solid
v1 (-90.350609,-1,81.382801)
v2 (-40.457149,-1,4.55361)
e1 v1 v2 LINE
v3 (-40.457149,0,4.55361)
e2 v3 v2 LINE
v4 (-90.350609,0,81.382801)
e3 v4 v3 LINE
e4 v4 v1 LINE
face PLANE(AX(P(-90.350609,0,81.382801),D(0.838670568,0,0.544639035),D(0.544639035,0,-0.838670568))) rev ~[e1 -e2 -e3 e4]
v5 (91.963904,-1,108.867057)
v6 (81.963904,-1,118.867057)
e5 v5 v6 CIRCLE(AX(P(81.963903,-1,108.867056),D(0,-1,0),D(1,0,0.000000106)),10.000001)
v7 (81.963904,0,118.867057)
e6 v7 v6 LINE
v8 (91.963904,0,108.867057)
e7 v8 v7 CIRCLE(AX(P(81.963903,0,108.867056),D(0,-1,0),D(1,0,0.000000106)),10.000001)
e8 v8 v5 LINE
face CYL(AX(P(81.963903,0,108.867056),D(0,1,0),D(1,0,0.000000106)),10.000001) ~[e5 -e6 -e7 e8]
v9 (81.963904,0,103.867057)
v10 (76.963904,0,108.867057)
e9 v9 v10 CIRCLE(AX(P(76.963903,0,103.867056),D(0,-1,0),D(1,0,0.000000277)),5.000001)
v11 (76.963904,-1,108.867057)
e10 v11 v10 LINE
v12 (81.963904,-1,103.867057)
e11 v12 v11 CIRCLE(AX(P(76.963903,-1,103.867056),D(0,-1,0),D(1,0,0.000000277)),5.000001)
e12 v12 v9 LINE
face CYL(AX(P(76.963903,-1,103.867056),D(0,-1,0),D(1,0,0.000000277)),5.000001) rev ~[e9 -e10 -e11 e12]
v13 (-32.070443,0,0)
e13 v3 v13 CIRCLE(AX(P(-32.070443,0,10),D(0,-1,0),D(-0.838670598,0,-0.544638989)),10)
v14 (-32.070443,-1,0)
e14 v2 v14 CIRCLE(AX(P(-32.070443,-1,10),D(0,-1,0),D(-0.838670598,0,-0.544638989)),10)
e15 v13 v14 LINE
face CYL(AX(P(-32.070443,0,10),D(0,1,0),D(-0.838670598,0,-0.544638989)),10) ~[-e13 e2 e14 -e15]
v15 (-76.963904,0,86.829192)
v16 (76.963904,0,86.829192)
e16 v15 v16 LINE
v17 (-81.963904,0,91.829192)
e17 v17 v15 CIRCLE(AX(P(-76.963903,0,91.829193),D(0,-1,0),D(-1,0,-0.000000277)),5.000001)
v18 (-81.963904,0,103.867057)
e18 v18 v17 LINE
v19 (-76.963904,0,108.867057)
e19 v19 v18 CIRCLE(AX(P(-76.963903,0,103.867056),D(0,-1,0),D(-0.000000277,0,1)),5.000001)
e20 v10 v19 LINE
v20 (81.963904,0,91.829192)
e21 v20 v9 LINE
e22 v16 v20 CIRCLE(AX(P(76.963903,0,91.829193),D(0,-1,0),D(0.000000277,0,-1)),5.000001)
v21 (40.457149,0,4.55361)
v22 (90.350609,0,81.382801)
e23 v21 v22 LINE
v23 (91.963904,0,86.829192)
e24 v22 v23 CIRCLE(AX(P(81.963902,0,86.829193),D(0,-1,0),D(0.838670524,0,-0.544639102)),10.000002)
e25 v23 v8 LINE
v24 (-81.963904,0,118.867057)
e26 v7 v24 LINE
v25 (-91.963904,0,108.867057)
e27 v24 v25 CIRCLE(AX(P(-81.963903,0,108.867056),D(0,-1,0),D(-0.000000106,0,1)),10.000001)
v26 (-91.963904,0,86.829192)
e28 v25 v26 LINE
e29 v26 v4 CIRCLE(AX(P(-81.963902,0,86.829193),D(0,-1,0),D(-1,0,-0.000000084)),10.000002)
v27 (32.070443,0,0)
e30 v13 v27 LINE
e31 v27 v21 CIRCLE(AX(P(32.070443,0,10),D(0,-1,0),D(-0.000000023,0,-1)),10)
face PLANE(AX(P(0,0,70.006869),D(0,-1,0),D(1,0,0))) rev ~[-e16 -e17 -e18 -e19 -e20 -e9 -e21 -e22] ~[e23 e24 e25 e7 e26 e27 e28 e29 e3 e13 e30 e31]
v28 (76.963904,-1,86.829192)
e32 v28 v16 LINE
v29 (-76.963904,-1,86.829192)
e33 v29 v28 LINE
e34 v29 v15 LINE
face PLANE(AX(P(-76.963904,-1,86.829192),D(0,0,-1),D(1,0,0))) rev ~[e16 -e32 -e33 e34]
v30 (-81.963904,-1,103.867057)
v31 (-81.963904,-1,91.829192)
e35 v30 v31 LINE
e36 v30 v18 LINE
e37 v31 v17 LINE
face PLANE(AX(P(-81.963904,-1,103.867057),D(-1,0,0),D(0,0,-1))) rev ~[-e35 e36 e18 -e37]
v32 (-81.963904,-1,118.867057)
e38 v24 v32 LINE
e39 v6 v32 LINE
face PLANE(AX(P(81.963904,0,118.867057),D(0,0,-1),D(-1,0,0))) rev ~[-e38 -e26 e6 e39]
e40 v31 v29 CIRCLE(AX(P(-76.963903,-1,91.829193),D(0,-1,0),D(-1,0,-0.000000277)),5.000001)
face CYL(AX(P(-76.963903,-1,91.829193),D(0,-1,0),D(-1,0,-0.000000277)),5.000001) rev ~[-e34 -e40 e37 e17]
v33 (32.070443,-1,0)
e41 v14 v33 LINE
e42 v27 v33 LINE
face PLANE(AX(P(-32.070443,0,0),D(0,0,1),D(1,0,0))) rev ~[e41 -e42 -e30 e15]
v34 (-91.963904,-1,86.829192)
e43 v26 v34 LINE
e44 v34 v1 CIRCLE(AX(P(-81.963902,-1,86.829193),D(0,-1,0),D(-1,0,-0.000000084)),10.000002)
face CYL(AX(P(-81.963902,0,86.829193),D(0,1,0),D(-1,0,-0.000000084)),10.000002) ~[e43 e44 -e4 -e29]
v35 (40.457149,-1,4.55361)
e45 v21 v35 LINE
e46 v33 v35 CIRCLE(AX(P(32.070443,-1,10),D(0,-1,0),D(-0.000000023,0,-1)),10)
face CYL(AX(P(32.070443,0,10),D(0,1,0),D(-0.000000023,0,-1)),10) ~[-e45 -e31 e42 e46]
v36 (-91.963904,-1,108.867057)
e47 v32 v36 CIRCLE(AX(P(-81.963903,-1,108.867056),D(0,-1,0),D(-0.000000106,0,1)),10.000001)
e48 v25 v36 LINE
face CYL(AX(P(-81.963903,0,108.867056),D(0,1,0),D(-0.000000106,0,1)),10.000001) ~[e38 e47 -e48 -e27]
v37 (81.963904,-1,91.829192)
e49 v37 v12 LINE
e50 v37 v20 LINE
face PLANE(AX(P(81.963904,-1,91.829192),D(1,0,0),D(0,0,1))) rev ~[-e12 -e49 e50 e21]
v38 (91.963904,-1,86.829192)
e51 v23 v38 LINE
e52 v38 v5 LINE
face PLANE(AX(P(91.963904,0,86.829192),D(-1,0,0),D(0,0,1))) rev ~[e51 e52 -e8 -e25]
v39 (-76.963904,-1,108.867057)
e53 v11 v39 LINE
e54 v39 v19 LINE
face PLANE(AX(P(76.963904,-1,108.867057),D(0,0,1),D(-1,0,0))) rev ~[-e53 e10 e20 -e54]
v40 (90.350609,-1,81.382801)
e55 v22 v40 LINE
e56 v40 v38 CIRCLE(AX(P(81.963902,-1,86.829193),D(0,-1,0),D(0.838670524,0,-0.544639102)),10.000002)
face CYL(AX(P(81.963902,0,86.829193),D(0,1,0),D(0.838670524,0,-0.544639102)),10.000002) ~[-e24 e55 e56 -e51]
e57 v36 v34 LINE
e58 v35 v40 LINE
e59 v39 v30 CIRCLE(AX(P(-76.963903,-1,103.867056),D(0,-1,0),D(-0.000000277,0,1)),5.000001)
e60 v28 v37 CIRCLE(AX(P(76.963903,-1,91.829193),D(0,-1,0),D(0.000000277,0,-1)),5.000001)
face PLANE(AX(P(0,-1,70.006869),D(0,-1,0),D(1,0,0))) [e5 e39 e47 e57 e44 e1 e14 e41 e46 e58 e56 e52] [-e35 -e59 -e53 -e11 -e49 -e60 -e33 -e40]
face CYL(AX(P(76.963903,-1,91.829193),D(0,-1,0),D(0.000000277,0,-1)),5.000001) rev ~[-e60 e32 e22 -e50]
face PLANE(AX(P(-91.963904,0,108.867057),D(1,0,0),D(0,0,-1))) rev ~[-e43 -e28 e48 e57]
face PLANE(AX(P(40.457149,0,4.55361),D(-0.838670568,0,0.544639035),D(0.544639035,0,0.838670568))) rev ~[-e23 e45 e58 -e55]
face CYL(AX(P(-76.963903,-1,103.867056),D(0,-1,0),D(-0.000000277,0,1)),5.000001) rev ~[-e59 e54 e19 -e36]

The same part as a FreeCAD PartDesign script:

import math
import FreeCAD as App
import Part
import Sketcher
Q = App.Units.Quantity

doc = App.newDocument("Part")
body = doc.addObject("PartDesign::Body", "Body")

sketch1 = body.newObject("Sketcher::SketchObject", "Sketch")
sketch1.AttachmentSupport = (doc.getObject("XZ_Plane"), [""])
sketch1.MapMode = "FlatFace"
sketch1.addGeometry(Part.LineSegment(App.Vector(-32.070443, 0, 0), App.Vector(32.070443, 0, 0)), False)
sketch1.addGeometry(Part.ArcOfCircle(Part.Circle(App.Vector(32.070443, 10, 0), App.Vector(0, 0, 1), 10), math.radians(-90.000001), math.radians(-32.999997)), False)
sketch1.addGeometry(Part.LineSegment(App.Vector(40.457149, 4.55361, 0), App.Vector(90.350609, 81.382801, 0)), False)
sketch1.addGeometry(Part.ArcOfCircle(Part.Circle(App.Vector(81.963902, 86.829193, 0), App.Vector(0, 0, 1), 10.000002), math.radians(-33.000005), math.radians(-0.000005)), False)
sketch1.addGeometry(Part.LineSegment(App.Vector(91.963904, 86.829192, 0), App.Vector(91.963904, 108.867057, 0)), False)
sketch1.addGeometry(Part.ArcOfCircle(Part.Circle(App.Vector(81.963903, 108.867056, 0), App.Vector(0, 0, 1), 10.000001), math.radians(0.000006), math.radians(89.999994)), False)
sketch1.addGeometry(Part.LineSegment(App.Vector(81.963904, 118.867057, 0), App.Vector(-81.963904, 118.867057, 0)), False)
sketch1.addGeometry(Part.ArcOfCircle(Part.Circle(App.Vector(-81.963903, 108.867056, 0), App.Vector(0, 0, 1), 10.000001), math.radians(90.000006), math.radians(179.999994)), False)
sketch1.addGeometry(Part.LineSegment(App.Vector(-91.963904, 108.867057, 0), App.Vector(-91.963904, 86.829192, 0)), False)
sketch1.addGeometry(Part.ArcOfCircle(Part.Circle(App.Vector(-81.963902, 86.829193, 0), App.Vector(0, 0, 1), 10.000002), math.radians(-179.999995), math.radians(-146.999995)), False)
sketch1.addGeometry(Part.LineSegment(App.Vector(-90.350609, 81.382801, 0), App.Vector(-40.457149, 4.55361, 0)), False)
sketch1.addGeometry(Part.ArcOfCircle(Part.Circle(App.Vector(-32.070443, 10, 0), App.Vector(0, 0, 1), 10), math.radians(-147.000003), math.radians(-89.999999)), False)
sketch1.addConstraint(Sketcher.Constraint("Tangent", 0, 2, 1, 1))
sketch1.addConstraint(Sketcher.Constraint("Tangent", 1, 2, 2, 1))
sketch1.addConstraint(Sketcher.Constraint("Tangent", 2, 2, 3, 1))
sketch1.addConstraint(Sketcher.Constraint("Tangent", 3, 2, 4, 1))
sketch1.addConstraint(Sketcher.Constraint("Tangent", 4, 2, 5, 1))
sketch1.addConstraint(Sketcher.Constraint("Tangent", 5, 2, 6, 1))
sketch1.addConstraint(Sketcher.Constraint("Tangent", 6, 2, 7, 1))
sketch1.addConstraint(Sketcher.Constraint("Tangent", 7, 2, 8, 1))
sketch1.addConstraint(Sketcher.Constraint("Tangent", 8, 2, 9, 1))
sketch1.addConstraint(Sketcher.Constraint("Tangent", 9, 2, 10, 1))
sketch1.addConstraint(Sketcher.Constraint("Tangent", 10, 2, 11, 1))
sketch1.addConstraint(Sketcher.Constraint("Tangent", 11, 2, 0, 1))
sketch1.addConstraint(Sketcher.Constraint("Horizontal", 0))
sketch1.addConstraint(Sketcher.Constraint("Vertical", 4))
sketch1.addConstraint(Sketcher.Constraint("Horizontal", 6))
sketch1.addConstraint(Sketcher.Constraint("Vertical", 8))
sketch1.addConstraint(Sketcher.Constraint("Equal", 1, 3))
sketch1.addConstraint(Sketcher.Constraint("Equal", 3, 5))
sketch1.addConstraint(Sketcher.Constraint("Equal", 5, 7))
sketch1.addConstraint(Sketcher.Constraint("Equal", 7, 9))
sketch1.addConstraint(Sketcher.Constraint("Equal", 9, 11))
sketch1.addConstraint(Sketcher.Constraint("Symmetric", 0, 2, 11, 2, -1, 1))
sketch1.addConstraint(Sketcher.Constraint("Symmetric", 3, 3, 9, 3, -2))
sketch1.addConstraint(Sketcher.Constraint("Radius", 1, 10.0))
sketch1.addConstraint(Sketcher.Constraint("Angle", 2, Q("57 deg")))
sketch1.addConstraint(Sketcher.Constraint("DistanceX", 6, 2, 6, 1, 163.927808))
sketch1.addConstraint(Sketcher.Constraint("DistanceY", -1, 1, 2, 2, 81.382801))
sketch1.addConstraint(Sketcher.Constraint("DistanceY", 4, 1, 4, 2, 22.037865))
pad1 = body.newObject("PartDesign::Pad", "Pad")
pad1.Profile = sketch1
pad1.Length = 1
body2 = doc.addObject("PartDesign::Body", "Body001")
doc.recompute()

body2.BaseFeature = body
doc.recompute()
body3 = doc.addObject("PartDesign::Body", "Body002")

sketch2 = body3.newObject("Sketcher::SketchObject", "Sketch001")
sketch2.AttachmentSupport = (doc.getObject("XZ_Plane002"), [""])
sketch2.MapMode = "FlatFace"
sketch2.AttachmentOffset = App.Placement(App.Vector(0, 0, 1), App.Rotation())
sketch2.addGeometry(Part.LineSegment(App.Vector(76.963904, 108.867057, 0), App.Vector(-76.963904, 108.867057, 0)), False)
sketch2.addGeometry(Part.ArcOfCircle(Part.Circle(App.Vector(-76.963903, 103.867056, 0), App.Vector(0, 0, 1), 5.000001), math.radians(90.000016), math.radians(179.999984)), False)
sketch2.addGeometry(Part.LineSegment(App.Vector(-81.963904, 103.867057, 0), App.Vector(-81.963904, 91.829192, 0)), False)
sketch2.addGeometry(Part.ArcOfCircle(Part.Circle(App.Vector(-76.963903, 91.829193, 0), App.Vector(0, 0, 1), 5.000001), math.radians(-179.999984), math.radians(-90.000016)), False)
sketch2.addGeometry(Part.LineSegment(App.Vector(-76.963904, 86.829192, 0), App.Vector(76.963904, 86.829192, 0)), False)
sketch2.addGeometry(Part.ArcOfCircle(Part.Circle(App.Vector(76.963903, 91.829193, 0), App.Vector(0, 0, 1), 5.000001), math.radians(-89.999984), math.radians(-0.000016)), False)
sketch2.addGeometry(Part.LineSegment(App.Vector(81.963904, 91.829192, 0), App.Vector(81.963904, 103.867057, 0)), False)
sketch2.addGeometry(Part.ArcOfCircle(Part.Circle(App.Vector(76.963903, 103.867056, 0), App.Vector(0, 0, 1), 5.000001), math.radians(0.000016), math.radians(89.999984)), False)
sketch2.addConstraint(Sketcher.Constraint("Tangent", 0, 2, 1, 1))
sketch2.addConstraint(Sketcher.Constraint("Tangent", 1, 2, 2, 1))
sketch2.addConstraint(Sketcher.Constraint("Tangent", 2, 2, 3, 1))
sketch2.addConstraint(Sketcher.Constraint("Tangent", 3, 2, 4, 1))
sketch2.addConstraint(Sketcher.Constraint("Tangent", 4, 2, 5, 1))
sketch2.addConstraint(Sketcher.Constraint("Tangent", 5, 2, 6, 1))
sketch2.addConstraint(Sketcher.Constraint("Tangent", 6, 2, 7, 1))
sketch2.addConstraint(Sketcher.Constraint("Tangent", 7, 2, 0, 1))
sketch2.addConstraint(Sketcher.Constraint("Horizontal", 0))
sketch2.addConstraint(Sketcher.Constraint("Vertical", 2))
sketch2.addConstraint(Sketcher.Constraint("Horizontal", 4))
sketch2.addConstraint(Sketcher.Constraint("Vertical", 6))
sketch2.addConstraint(Sketcher.Constraint("Equal", 1, 3))
sketch2.addConstraint(Sketcher.Constraint("Equal", 3, 5))
sketch2.addConstraint(Sketcher.Constraint("Equal", 5, 7))
sketch2.addConstraint(Sketcher.Constraint("Radius", 1, 5.000001))
sketch2.addConstraint(Sketcher.Constraint("DistanceX", 0, 2, 0, 1, 153.927808))
sketch2.addConstraint(Sketcher.Constraint("DistanceY", 2, 2, 2, 1, 12.037865))
sketch2.addConstraint(Sketcher.Constraint("DistanceX", 1, 3, -1, 1, 76.963903))
sketch2.addConstraint(Sketcher.Constraint("DistanceY", -1, 1, 1, 3, 103.867056))
pad2 = body3.newObject("PartDesign::Pad", "Pad001")
pad2.Profile = sketch2
pad2.Length = 25
pad2.Reversed = True
doc.recompute()

body4 = doc.addObject("PartDesign::Body", "Body003")
body4.BaseFeature = body3
boolean = body.newObject("PartDesign::Boolean", "Boolean")
boolean.Type = "Cut"
boolean.addObjects([body4])
doc.recompute()

boolean2 = body2.newObject("PartDesign::Boolean", "Boolean001")
boolean2.Type = "Cut"
boolean2.addObjects([body3])
body.Visibility = False

doc.recompute()
